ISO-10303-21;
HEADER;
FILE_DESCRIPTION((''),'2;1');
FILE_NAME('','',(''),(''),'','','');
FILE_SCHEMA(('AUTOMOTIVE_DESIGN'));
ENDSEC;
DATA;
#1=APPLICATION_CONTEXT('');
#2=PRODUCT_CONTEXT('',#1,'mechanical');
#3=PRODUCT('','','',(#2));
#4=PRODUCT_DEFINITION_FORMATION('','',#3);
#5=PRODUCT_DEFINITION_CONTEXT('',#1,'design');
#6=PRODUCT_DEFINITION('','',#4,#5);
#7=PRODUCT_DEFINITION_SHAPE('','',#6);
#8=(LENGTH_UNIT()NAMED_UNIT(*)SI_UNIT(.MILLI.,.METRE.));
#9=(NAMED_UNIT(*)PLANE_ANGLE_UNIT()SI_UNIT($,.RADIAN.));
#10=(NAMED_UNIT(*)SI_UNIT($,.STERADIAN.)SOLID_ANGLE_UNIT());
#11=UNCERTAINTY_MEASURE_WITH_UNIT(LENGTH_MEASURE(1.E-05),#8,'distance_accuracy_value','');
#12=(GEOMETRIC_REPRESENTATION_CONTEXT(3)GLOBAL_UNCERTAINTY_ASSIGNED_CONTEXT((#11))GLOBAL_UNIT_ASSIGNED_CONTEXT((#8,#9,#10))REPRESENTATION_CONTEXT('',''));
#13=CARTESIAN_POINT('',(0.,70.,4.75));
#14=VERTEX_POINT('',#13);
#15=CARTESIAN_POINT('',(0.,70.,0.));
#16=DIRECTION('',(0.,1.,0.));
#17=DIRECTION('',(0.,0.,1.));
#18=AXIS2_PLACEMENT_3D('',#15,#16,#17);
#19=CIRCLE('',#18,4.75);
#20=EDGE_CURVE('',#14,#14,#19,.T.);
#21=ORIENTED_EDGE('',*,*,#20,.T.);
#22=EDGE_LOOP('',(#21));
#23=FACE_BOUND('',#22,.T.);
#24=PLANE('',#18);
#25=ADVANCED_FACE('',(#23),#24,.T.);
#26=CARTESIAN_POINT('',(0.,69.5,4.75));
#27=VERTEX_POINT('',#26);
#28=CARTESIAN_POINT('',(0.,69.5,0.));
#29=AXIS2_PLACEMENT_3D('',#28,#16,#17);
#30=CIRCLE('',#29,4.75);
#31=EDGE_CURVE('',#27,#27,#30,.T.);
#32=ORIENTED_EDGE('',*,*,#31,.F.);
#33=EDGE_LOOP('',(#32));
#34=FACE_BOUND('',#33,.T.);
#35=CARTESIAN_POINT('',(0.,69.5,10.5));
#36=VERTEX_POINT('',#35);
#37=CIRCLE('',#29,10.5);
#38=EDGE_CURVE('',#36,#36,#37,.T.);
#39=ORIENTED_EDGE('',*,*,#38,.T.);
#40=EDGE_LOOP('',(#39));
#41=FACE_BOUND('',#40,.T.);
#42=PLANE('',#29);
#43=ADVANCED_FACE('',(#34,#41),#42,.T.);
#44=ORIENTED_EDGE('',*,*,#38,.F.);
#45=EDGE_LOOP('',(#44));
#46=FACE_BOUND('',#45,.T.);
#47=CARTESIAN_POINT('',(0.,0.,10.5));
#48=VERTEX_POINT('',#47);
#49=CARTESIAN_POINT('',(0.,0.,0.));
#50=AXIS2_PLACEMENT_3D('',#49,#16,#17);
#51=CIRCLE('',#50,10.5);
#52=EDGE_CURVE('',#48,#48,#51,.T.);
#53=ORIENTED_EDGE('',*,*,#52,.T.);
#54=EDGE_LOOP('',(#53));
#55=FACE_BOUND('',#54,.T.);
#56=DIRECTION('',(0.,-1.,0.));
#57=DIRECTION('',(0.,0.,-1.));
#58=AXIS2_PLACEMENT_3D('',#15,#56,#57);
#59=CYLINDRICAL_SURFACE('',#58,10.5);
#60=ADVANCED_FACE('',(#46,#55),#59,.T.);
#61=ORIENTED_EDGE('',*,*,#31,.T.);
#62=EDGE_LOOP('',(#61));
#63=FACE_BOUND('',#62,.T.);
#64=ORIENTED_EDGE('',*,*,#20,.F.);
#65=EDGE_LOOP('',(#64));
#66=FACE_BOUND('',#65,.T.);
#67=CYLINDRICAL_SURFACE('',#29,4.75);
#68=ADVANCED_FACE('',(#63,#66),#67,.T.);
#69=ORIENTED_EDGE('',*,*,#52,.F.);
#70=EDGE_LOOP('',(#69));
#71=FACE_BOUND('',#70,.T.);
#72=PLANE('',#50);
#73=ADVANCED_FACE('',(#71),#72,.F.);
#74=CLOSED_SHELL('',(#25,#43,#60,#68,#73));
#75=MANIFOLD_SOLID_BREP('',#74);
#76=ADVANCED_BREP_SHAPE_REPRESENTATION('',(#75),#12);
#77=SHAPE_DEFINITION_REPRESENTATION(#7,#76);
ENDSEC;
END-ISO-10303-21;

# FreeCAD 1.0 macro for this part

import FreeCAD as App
import Part
import Sketcher
from FreeCAD import Vector

doc = App.newDocument("Part")
body = doc.addObject("PartDesign::Body", "Body")

sketch1 = body.newObject("Sketcher::SketchObject", "Sketch")
sketch1.AttachmentSupport = (doc.getObject("XZ_Plane"), [""])
sketch1.MapMode = "FlatFace"
sketch1.addGeometry(Part.Circle(Vector(0, 0, 0), Vector(0, 0, 1), 10), False)
sketch1.addConstraint(Sketcher.Constraint("Coincident", 0, 3, -1, 1))
sketch1.addConstraint(Sketcher.Constraint("Diameter", 0, 21.0))
pad1 = body.newObject("PartDesign::Pad", "Pad")
pad1.Profile = sketch1
pad1.Length = 70
pad1.Reversed = True

sketch2 = body.newObject("Sketcher::SketchObject", "Sketch001")
sketch2.AttachmentSupport = (doc.getObject("XZ_Plane"), [""])
sketch2.MapMode = "FlatFace"
sketch2.AttachmentOffset = App.Placement(Vector(0, 0, -69.5), App.Rotation())
sketch2.addGeometry(Part.Circle(Vector(0, 0, 0), Vector(0, 0, 1), 10.5), False)
sketch2.addGeometry(Part.Circle(Vector(0, 0, 0), Vector(0, 0, 1), 4.8), False)
sketch2.addConstraint(Sketcher.Constraint("Coincident", 0, 3, -1, 1))
sketch2.addConstraint(Sketcher.Constraint("Coincident", 1, 3, -1, 1))
sketch2.addConstraint(Sketcher.Constraint("Diameter", 0, 21.0))
sketch2.addConstraint(Sketcher.Constraint("Diameter", 1, 9.5))
pocket1 = body.newObject("PartDesign::Pocket", "Pocket")
pocket1.Profile = sketch2
pocket1.Length = 0.5

doc.recompute()
